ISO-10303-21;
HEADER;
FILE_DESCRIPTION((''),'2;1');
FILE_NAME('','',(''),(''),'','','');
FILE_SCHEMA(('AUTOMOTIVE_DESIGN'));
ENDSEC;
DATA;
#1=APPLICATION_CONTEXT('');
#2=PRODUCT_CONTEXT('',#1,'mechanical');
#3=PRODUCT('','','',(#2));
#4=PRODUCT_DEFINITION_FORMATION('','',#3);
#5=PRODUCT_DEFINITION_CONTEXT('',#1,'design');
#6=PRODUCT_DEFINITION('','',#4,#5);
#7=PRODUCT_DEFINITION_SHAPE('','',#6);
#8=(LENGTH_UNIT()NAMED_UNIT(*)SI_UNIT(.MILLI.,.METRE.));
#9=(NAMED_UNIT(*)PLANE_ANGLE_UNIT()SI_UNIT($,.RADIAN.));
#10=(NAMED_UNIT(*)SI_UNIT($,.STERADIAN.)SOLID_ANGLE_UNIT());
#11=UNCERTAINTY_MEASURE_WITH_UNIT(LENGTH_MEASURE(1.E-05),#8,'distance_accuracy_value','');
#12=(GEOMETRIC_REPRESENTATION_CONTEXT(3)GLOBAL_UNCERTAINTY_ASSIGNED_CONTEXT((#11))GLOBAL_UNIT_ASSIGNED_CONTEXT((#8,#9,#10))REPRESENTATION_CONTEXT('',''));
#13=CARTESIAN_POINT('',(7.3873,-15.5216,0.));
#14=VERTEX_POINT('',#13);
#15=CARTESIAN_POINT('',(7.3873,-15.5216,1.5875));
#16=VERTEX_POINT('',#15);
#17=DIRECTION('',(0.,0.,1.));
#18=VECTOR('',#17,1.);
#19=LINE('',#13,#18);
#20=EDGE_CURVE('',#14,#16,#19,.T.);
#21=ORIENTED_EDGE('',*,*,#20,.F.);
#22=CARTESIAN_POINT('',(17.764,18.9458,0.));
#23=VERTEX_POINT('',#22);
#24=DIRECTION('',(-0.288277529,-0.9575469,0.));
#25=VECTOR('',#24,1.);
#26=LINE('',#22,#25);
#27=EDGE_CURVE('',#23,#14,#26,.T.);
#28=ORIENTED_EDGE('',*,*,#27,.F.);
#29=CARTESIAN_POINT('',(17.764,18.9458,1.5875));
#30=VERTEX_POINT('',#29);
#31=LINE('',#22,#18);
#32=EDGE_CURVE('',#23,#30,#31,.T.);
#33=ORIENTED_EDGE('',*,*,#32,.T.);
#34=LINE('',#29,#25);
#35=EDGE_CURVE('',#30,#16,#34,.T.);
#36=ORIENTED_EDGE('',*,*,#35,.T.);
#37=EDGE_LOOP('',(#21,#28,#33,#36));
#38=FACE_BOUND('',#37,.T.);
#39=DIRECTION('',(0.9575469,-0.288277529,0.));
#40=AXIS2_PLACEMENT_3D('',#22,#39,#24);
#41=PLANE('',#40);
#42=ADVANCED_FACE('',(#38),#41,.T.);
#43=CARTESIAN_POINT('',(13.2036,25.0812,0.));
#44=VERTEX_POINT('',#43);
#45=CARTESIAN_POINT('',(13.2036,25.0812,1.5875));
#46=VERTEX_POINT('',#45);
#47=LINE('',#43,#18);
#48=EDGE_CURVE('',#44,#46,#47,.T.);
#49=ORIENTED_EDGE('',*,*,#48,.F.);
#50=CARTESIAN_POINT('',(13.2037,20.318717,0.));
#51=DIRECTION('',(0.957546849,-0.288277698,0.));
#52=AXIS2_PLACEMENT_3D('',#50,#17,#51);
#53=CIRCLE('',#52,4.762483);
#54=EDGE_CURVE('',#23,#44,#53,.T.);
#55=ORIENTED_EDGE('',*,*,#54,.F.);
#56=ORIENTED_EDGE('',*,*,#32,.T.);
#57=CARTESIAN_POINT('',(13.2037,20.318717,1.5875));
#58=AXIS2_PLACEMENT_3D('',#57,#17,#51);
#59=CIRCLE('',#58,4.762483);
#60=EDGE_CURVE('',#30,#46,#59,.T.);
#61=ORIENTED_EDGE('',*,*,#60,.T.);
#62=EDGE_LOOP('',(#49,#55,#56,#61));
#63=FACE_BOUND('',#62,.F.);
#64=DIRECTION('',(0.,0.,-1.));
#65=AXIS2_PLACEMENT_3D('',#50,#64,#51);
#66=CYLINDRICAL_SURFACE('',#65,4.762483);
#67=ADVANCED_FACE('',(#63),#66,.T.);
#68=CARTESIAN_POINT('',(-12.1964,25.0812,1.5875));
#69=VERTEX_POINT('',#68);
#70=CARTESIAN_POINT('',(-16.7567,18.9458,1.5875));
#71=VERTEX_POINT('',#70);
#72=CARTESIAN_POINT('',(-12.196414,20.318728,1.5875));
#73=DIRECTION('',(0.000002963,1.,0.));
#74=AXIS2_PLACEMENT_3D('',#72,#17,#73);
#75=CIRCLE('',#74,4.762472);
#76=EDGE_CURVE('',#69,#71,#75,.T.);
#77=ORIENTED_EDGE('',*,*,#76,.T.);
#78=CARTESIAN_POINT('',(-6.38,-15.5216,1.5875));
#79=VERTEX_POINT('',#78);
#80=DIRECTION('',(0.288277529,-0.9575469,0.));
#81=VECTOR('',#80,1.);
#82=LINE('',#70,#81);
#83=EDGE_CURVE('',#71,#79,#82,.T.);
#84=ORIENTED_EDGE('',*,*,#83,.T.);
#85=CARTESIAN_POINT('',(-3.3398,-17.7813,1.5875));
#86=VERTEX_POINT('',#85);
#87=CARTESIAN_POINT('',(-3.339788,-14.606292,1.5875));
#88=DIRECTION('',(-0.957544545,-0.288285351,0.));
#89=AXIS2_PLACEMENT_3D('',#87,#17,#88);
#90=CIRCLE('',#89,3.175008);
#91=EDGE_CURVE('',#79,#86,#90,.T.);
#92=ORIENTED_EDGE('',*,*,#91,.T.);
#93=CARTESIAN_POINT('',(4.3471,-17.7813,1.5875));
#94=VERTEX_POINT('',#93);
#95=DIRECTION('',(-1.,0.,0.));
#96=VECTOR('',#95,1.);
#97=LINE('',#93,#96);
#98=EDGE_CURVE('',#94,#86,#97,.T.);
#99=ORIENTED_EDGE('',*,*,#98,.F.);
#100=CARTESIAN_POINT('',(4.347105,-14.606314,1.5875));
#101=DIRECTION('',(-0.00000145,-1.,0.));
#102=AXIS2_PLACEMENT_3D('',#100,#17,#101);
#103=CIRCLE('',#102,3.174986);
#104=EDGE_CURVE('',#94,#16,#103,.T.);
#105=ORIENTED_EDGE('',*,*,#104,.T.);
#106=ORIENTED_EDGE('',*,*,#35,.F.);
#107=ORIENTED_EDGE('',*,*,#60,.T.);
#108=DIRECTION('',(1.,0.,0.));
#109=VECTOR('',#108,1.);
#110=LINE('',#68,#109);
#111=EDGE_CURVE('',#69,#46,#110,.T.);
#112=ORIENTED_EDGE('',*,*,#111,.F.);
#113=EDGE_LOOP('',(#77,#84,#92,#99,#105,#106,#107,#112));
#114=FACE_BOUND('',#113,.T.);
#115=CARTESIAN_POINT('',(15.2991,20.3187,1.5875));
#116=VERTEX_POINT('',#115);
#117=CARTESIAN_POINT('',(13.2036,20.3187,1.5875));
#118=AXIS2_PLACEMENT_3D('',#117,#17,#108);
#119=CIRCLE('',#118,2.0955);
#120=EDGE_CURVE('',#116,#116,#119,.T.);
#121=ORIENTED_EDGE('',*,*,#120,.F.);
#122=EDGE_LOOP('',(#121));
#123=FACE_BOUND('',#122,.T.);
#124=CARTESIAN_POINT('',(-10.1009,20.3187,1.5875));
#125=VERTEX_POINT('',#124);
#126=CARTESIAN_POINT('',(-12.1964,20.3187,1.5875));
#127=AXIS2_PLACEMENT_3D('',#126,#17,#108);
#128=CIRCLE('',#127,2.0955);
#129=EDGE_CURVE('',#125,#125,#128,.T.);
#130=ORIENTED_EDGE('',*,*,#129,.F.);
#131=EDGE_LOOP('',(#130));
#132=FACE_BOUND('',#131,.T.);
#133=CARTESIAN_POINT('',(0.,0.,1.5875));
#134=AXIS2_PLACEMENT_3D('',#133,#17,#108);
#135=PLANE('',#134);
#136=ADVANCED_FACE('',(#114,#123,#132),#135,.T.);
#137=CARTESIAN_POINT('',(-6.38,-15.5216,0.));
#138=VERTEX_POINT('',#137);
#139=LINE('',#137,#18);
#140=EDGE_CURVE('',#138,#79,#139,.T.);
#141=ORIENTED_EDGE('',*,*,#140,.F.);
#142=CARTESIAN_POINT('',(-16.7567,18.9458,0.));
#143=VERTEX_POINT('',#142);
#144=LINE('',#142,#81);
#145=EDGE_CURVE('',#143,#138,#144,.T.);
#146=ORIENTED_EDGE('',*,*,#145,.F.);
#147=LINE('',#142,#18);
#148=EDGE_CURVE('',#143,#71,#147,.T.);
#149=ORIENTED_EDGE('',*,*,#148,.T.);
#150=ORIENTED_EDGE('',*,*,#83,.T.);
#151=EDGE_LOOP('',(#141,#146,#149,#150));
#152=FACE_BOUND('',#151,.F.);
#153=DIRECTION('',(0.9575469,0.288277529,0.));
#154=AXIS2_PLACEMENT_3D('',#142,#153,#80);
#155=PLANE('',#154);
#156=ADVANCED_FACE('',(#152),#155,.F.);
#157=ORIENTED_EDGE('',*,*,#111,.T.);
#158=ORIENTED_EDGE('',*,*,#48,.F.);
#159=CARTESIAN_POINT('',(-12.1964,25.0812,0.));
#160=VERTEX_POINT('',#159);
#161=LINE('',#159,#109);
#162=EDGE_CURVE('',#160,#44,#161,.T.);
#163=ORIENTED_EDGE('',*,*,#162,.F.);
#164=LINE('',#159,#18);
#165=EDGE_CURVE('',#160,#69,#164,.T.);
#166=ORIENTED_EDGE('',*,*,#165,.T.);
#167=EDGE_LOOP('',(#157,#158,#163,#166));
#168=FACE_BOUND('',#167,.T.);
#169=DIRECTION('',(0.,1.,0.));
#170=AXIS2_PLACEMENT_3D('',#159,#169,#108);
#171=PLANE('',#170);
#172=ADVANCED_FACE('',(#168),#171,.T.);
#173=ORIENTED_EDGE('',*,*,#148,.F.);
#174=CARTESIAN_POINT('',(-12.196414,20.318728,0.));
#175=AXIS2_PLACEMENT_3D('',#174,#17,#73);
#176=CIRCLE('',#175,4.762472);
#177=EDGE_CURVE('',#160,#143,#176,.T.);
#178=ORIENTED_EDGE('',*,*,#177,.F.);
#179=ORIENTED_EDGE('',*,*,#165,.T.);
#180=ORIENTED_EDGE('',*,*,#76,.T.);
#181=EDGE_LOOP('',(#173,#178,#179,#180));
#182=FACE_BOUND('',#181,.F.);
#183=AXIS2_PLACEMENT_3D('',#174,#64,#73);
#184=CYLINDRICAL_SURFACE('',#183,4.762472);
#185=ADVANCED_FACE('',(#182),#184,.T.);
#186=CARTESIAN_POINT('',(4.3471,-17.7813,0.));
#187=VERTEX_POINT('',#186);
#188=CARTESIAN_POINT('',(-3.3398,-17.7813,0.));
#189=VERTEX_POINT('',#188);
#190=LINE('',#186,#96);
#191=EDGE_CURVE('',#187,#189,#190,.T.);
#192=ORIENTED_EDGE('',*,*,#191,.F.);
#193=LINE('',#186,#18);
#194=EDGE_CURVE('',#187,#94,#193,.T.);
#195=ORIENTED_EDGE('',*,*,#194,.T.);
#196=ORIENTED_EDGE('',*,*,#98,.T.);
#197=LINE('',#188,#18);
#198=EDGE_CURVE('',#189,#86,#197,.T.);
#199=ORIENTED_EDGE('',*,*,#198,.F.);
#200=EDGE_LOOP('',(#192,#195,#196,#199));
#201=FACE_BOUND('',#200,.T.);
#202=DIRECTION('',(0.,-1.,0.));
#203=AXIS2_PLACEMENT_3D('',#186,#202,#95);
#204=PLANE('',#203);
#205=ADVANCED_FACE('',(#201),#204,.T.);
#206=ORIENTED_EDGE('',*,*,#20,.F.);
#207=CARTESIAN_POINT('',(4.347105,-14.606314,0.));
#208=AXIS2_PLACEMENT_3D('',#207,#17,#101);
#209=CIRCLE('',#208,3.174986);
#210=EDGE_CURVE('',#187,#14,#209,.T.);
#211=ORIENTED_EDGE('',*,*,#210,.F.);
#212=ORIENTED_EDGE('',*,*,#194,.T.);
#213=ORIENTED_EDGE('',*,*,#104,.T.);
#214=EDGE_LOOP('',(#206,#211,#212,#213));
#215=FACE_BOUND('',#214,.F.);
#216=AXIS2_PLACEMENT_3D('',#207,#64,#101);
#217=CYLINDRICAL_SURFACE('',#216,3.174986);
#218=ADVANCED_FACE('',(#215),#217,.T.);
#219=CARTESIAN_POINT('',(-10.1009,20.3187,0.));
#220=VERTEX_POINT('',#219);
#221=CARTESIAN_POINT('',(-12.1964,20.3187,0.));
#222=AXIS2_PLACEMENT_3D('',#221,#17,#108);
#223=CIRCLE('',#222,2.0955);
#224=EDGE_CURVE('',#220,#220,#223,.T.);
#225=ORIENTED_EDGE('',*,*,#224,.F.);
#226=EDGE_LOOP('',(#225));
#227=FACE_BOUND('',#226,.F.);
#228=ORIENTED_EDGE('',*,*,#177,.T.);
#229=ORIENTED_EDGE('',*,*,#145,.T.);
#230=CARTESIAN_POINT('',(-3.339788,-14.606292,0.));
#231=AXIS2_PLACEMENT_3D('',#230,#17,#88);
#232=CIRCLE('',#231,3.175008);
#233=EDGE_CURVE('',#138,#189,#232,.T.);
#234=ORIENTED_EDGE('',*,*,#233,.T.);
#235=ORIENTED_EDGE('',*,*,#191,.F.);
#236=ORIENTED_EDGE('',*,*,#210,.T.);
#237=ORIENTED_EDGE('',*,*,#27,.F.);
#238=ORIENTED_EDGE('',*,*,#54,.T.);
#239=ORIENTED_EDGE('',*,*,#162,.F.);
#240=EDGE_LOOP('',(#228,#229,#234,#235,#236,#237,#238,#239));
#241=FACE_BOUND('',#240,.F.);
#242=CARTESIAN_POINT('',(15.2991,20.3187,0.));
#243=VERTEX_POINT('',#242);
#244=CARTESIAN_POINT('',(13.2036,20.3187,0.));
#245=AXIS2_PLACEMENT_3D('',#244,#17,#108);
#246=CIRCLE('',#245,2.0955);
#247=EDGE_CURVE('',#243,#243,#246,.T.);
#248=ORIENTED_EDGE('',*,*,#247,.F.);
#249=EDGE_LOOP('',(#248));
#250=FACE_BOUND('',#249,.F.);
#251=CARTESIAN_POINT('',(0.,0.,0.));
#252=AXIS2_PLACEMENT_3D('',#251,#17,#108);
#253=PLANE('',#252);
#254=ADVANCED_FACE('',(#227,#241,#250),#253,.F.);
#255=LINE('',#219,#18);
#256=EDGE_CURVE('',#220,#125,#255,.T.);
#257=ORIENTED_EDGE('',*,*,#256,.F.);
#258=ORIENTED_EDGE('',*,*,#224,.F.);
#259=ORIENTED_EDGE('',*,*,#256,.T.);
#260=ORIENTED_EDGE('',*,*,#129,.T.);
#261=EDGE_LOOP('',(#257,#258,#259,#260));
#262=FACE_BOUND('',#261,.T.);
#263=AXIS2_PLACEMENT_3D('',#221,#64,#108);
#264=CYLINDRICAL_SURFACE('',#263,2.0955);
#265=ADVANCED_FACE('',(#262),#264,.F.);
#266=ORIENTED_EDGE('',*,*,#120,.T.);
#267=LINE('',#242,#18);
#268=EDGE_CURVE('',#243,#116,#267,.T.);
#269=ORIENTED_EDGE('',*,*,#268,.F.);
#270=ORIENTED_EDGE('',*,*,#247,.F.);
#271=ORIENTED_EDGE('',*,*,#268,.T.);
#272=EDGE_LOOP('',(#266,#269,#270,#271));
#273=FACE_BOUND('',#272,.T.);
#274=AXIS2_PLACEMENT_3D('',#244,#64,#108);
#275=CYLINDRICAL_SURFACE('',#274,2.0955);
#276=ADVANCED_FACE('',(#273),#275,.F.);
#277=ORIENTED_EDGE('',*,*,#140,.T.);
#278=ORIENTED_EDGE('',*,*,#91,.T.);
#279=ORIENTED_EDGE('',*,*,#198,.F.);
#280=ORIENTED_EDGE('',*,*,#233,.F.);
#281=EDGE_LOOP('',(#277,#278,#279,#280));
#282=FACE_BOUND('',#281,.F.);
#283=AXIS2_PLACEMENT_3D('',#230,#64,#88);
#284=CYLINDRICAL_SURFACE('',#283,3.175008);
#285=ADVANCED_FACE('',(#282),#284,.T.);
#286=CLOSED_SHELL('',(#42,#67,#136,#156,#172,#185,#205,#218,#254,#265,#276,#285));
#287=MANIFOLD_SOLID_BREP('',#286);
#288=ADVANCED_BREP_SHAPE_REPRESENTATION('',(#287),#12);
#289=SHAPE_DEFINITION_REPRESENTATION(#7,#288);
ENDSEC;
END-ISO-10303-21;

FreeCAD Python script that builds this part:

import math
import FreeCAD as App
import Part
import Sketcher
Q = App.Units.Quantity

doc = App.newDocument("Part")
body = doc.addObject("PartDesign::Body", "Body")

# Sketch on XY plane
sketch1 = doc.addObject("Sketcher::SketchObject", "Sketch")
body.addObject(sketch1)
sketch1.AttachmentSupport = (doc.XY_Plane, [""])
sketch1.MapMode = "FlatFace"
sketch1.addGeometry(Part.LineSegment(App.Vector(-3.3, -17.8, 0), App.Vector(4.3, -17.8, 0)), False)
sketch1.addGeometry(Part.ArcOfCircle(Part.Circle(App.Vector(4.3, -14.6, 0), App.Vector(0, 0, 1), 3.2), math.radians(-90), math.radians(-17)), False)
sketch1.addGeometry(Part.LineSegment(App.Vector(7.4, -15.5, 0), App.Vector(17.8, 18.9, 0)), False)
sketch1.addGeometry(Part.ArcOfCircle(Part.Circle(App.Vector(13.2, 20.3, 0), App.Vector(0, 0, 1), 4.8), math.radians(-17), math.radians(90)), False)
sketch1.addGeometry(Part.LineSegment(App.Vector(13.2, 25.1, 0), App.Vector(-12.2, 25.1, 0)), False)
sketch1.addGeometry(Part.ArcOfCircle(Part.Circle(App.Vector(-12.2, 20.3, 0), App.Vector(0, 0, 1), 4.8), math.radians(90), math.radians(197)), False)
sketch1.addGeometry(Part.LineSegment(App.Vector(-16.8, 18.9, 0), App.Vector(-6.4, -15.5, 0)), False)
sketch1.addGeometry(Part.ArcOfCircle(Part.Circle(App.Vector(-3.3, -14.6, 0), App.Vector(0, 0, 1), 3.2), math.radians(-163), math.radians(-90)), False)
sketch1.addGeometry(Part.Circle(App.Vector(-12.2, 20.3, 0), App.Vector(0, 0, 1), 2.1), False)
sketch1.addGeometry(Part.Circle(App.Vector(13.2, 20.3, 0), App.Vector(0, 0, 1), 2.1), False)
sketch1.addConstraint(Sketcher.Constraint("Tangent", 0, 2, 1, 1))
sketch1.addConstraint(Sketcher.Constraint("Tangent", 1, 2, 2, 1))
sketch1.addConstraint(Sketcher.Constraint("Tangent", 2, 2, 3, 1))
sketch1.addConstraint(Sketcher.Constraint("Tangent", 3, 2, 4, 1))
sketch1.addConstraint(Sketcher.Constraint("Tangent", 4, 2, 5, 1))
sketch1.addConstraint(Sketcher.Constraint("Tangent", 5, 2, 6, 1))
sketch1.addConstraint(Sketcher.Constraint("Tangent", 6, 2, 7, 1))
sketch1.addConstraint(Sketcher.Constraint("Tangent", 7, 2, 0, 1))
sketch1.addConstraint(Sketcher.Constraint("Horizontal", 0))
sketch1.addConstraint(Sketcher.Constraint("Horizontal", 4))
sketch1.addConstraint(Sketcher.Constraint("Coincident", 8, 3, 5, 3))
sketch1.addConstraint(Sketcher.Constraint("Coincident", 9, 3, 3, 3))
sketch1.addConstraint(Sketcher.Constraint("Equal", 3, 5))
sketch1.addConstraint(Sketcher.Constraint("Equal", 1, 7))
sketch1.addConstraint(Sketcher.Constraint("Equal", 8, 9))
sketch1.addConstraint(Sketcher.Constraint("Horizontal", 2, 2, 5, 2))
sketch1.addConstraint(Sketcher.Constraint("Diameter", 8, Q("0.165 in")))
sketch1.addConstraint(Sketcher.Constraint("Radius", 1, Q("0.125 in")))
sketch1.addConstraint(Sketcher.Constraint("Radius", 3, Q("0.1875 in")))
sketch1.addConstraint(Sketcher.Constraint("DistanceX", 4, 2, 4, 1, Q("1 in")))
sketch1.addConstraint(Sketcher.Constraint("DistanceY", 0, 2, 3, 3, Q("1.5 in")))
sketch1.addConstraint(Sketcher.Constraint("DistanceX", 0, 1, 0, 2, Q("7.687 mm")))
sketch1.addConstraint(Sketcher.Constraint("DistanceX", 7, 3, -1, 1, Q("0.1315 in")))
sketch1.addConstraint(Sketcher.Constraint("DistanceY", -1, 1, 2, 2, Q("0.7459 in")))
pad1 = doc.addObject("PartDesign::Pad", "Pad")
body.addObject(pad1)
pad1.Profile = sketch1
pad1.Length = Q("0.0625 in")

doc.recompute()
